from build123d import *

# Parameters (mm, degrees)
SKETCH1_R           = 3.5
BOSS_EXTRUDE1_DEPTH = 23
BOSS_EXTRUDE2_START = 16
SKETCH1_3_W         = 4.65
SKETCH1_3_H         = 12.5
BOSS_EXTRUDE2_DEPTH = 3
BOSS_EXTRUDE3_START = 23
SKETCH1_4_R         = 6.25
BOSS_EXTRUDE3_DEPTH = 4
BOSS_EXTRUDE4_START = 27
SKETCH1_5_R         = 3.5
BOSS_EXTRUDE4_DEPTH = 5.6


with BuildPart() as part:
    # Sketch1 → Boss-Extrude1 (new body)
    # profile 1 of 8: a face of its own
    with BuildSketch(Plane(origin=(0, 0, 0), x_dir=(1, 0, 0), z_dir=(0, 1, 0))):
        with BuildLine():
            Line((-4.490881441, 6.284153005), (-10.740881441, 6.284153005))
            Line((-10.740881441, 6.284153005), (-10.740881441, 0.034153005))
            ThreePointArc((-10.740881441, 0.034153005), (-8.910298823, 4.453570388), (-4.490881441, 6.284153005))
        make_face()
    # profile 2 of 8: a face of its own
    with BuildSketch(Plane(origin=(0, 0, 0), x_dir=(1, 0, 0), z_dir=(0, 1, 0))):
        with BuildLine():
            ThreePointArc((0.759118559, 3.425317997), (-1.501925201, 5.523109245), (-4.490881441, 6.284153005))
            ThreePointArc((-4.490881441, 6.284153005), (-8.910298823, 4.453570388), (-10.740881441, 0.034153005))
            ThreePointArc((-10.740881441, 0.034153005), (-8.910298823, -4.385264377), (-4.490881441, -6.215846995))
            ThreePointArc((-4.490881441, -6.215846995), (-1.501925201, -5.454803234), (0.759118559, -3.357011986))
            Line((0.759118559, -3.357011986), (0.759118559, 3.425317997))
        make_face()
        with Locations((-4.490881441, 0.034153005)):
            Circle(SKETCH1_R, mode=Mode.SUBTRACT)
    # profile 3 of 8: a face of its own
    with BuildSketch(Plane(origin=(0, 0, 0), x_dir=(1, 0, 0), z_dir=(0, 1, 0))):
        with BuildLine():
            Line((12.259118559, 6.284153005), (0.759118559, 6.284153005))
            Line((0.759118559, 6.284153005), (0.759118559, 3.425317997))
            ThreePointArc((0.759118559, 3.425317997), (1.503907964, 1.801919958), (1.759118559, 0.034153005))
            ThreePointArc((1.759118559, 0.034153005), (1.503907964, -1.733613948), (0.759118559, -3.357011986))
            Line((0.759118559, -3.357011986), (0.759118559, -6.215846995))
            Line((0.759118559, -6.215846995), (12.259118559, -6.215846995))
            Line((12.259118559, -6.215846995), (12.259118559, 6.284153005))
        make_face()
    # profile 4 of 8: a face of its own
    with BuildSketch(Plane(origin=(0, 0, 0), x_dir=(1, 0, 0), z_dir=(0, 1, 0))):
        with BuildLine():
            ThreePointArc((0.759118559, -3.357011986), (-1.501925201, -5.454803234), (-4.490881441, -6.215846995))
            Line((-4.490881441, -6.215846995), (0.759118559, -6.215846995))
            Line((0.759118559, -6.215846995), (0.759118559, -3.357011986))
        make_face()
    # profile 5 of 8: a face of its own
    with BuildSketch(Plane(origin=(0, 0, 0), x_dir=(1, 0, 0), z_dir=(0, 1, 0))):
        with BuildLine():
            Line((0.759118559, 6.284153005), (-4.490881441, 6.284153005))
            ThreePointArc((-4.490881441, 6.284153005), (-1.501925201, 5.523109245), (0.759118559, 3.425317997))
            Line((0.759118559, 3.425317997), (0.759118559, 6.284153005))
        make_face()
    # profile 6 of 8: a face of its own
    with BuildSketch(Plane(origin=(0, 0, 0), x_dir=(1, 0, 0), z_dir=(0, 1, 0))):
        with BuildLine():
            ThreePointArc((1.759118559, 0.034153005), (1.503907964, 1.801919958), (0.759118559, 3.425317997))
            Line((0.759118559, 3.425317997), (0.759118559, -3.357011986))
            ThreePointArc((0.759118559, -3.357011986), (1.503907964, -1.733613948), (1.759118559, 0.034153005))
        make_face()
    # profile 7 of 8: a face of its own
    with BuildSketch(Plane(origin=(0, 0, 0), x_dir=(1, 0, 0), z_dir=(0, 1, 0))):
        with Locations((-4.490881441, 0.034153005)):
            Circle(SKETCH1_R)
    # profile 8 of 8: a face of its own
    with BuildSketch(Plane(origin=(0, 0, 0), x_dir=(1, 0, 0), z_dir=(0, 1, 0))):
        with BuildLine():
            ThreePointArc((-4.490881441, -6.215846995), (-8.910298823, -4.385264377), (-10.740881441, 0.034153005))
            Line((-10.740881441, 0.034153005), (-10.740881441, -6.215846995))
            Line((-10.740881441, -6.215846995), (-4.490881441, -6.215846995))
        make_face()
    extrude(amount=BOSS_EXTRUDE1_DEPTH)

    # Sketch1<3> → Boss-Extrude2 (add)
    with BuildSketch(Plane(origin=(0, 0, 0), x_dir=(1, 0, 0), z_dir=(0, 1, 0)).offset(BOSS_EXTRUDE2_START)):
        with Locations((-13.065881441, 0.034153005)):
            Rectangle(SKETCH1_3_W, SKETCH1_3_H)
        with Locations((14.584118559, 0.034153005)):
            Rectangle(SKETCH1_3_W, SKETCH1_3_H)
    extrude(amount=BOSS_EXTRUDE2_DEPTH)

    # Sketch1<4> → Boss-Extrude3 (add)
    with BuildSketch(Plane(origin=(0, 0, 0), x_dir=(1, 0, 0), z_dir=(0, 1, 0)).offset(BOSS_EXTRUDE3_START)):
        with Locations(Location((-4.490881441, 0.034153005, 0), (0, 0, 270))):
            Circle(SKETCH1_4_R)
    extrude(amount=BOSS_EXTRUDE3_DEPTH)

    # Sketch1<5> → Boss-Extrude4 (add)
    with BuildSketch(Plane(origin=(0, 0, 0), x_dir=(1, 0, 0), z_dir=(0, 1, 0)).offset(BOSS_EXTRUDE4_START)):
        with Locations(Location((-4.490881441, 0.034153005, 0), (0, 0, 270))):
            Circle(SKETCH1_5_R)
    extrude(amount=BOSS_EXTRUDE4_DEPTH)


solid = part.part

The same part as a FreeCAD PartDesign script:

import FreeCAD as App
import Part
import Sketcher
from FreeCAD import Vector
Q = App.Units.Quantity


def add_polygon(sketch, points):
    """Adds a closed chain of lines whose ends are joined by coincident constraints."""
    first, n = sketch.GeometryCount, len(points)
    for a, b in zip(points, points[1:] + points[:1]):
        sketch.addGeometry(Part.LineSegment(App.Vector(*a, 0), App.Vector(*b, 0)), False)
    for i in range(n):
        sketch.addConstraint(Sketcher.Constraint("Coincident", first + i, 2, first + (i + 1) % n, 1))

doc = App.newDocument("Part")
body = doc.addObject("PartDesign::Body", "Body")

# Sketch on XZ plane
sketch1 = doc.addObject("Sketcher::SketchObject", "Sketch")
body.addObject(sketch1)
sketch1.AttachmentSupport = (doc.XZ_Plane, [""])
sketch1.MapMode = "FlatFace"
add_polygon(sketch1, [(-10.740881, -6.284153), (-10.740881, 6.215847), (12.259119, 6.215847), (12.259119, -6.284153)])  # lines 0-3
sketch1.addConstraint(Sketcher.Constraint("Vertical", 0))
sketch1.addConstraint(Sketcher.Constraint("Horizontal", 1))
sketch1.addConstraint(Sketcher.Constraint("Vertical", 2))
sketch1.addConstraint(Sketcher.Constraint("Horizontal", 3))
sketch1.addConstraint(Sketcher.Constraint("DistanceX", 1, 1, 1, 2, Q("23 mm")))
sketch1.addConstraint(Sketcher.Constraint("DistanceY", 0, 1, 0, 2, Q("12.5 mm")))
sketch1.addConstraint(Sketcher.Constraint("DistanceX", 0, 2, -1, 1, Q("10.740881 mm")))
sketch1.addConstraint(Sketcher.Constraint("DistanceY", -1, 1, 0, 2, Q("6.215847 mm")))
pad1 = doc.addObject("PartDesign::Pad", "Pad")
body.addObject(pad1)
pad1.Profile = sketch1
pad1.Length = 23
pad1.Reversed = True

# Sketch on XZ plane
sketch2 = doc.addObject("Sketcher::SketchObject", "Sketch001")
body.addObject(sketch2)
sketch2.AttachmentSupport = (doc.XZ_Plane, [""])
sketch2.MapMode = "FlatFace"
sketch2.AttachmentOffset = App.Placement(Vector(0, 0, -16), App.Rotation())
add_polygon(sketch2, [(-15.390881, -6.284153), (-15.390881, 6.215847), (-10.740881, 6.215847), (-10.740881, -6.284153)])  # lines 0-3
add_polygon(sketch2, [(12.259119, -6.284153), (12.259119, 6.215847), (16.909119, 6.215847), (16.909119, -6.284153)])  # lines 4-7
sketch2.addConstraint(Sketcher.Constraint("Vertical", 0))
sketch2.addConstraint(Sketcher.Constraint("Horizontal", 1))
sketch2.addConstraint(Sketcher.Constraint("Vertical", 2))
sketch2.addConstraint(Sketcher.Constraint("Horizontal", 3))
sketch2.addConstraint(Sketcher.Constraint("Vertical", 4))
sketch2.addConstraint(Sketcher.Constraint("Horizontal", 5))
sketch2.addConstraint(Sketcher.Constraint("Vertical", 6))
sketch2.addConstraint(Sketcher.Constraint("Horizontal", 7))
sketch2.addConstraint(Sketcher.Constraint("Horizontal", 1, 2, 4, 2))
sketch2.addConstraint(Sketcher.Constraint("Horizontal", 3, 2, 6, 2))
sketch2.addConstraint(Sketcher.Constraint("Equal", 3, 5))
sketch2.addConstraint(Sketcher.Constraint("DistanceY", 0, 1, 0, 2, Q("12.5 mm")))
sketch2.addConstraint(Sketcher.Constraint("DistanceX", 1, 2, 4, 2, Q("23 mm")))
sketch2.addConstraint(Sketcher.Constraint("DistanceX", 1, 1, 1, 2, Q("4.65 mm")))
sketch2.addConstraint(Sketcher.Constraint("DistanceX", 0, 2, -1, 1, Q("15.390881 mm")))
sketch2.addConstraint(Sketcher.Constraint("DistanceY", -1, 1, 0, 2, Q("6.215847 mm")))
pad2 = doc.addObject("PartDesign::Pad", "Pad001")
body.addObject(pad2)
pad2.Profile = sketch2
pad2.Length = 3
pad2.Reversed = True

# Sketch on XZ plane
sketch3 = doc.addObject("Sketcher::SketchObject", "Sketch002")
body.addObject(sketch3)
sketch3.AttachmentSupport = (doc.XZ_Plane, [""])
sketch3.MapMode = "FlatFace"
sketch3.AttachmentOffset = App.Placement(Vector(0, 0, -23), App.Rotation())
sketch3.addGeometry(Part.Circle(Vector(-4.490881, -0.034153, 0), Vector(0, 0, 1), 6.25), False)
sketch3.addConstraint(Sketcher.Constraint("Diameter", 0, Q("12.5 mm")))
sketch3.addConstraint(Sketcher.Constraint("DistanceX", 0, 3, -1, 1, Q("4.490881 mm")))
sketch3.addConstraint(Sketcher.Constraint("DistanceY", 0, 3, -1, 1, Q("0.034153 mm")))
pad3 = doc.addObject("PartDesign::Pad", "Pad002")
body.addObject(pad3)
pad3.Profile = sketch3
pad3.Length = 4
pad3.Reversed = True

# Sketch on XZ plane
sketch4 = doc.addObject("Sketcher::SketchObject", "Sketch003")
body.addObject(sketch4)
sketch4.AttachmentSupport = (doc.XZ_Plane, [""])
sketch4.MapMode = "FlatFace"
sketch4.AttachmentOffset = App.Placement(Vector(0, 0, -27), App.Rotation())
sketch4.addGeometry(Part.Circle(Vector(-4.490881, -0.034153, 0), Vector(0, 0, 1), 3.5), False)
sketch4.addConstraint(Sketcher.Constraint("Diameter", 0, Q("7 mm")))
sketch4.addConstraint(Sketcher.Constraint("DistanceX", 0, 3, -1, 1, Q("4.490881 mm")))
sketch4.addConstraint(Sketcher.Constraint("DistanceY", 0, 3, -1, 1, Q("0.034153 mm")))
pad4 = doc.addObject("PartDesign::Pad", "Pad003")
body.addObject(pad4)
pad4.Profile = sketch4
pad4.Length = 5.6
pad4.Reversed = True

doc.recompute()
